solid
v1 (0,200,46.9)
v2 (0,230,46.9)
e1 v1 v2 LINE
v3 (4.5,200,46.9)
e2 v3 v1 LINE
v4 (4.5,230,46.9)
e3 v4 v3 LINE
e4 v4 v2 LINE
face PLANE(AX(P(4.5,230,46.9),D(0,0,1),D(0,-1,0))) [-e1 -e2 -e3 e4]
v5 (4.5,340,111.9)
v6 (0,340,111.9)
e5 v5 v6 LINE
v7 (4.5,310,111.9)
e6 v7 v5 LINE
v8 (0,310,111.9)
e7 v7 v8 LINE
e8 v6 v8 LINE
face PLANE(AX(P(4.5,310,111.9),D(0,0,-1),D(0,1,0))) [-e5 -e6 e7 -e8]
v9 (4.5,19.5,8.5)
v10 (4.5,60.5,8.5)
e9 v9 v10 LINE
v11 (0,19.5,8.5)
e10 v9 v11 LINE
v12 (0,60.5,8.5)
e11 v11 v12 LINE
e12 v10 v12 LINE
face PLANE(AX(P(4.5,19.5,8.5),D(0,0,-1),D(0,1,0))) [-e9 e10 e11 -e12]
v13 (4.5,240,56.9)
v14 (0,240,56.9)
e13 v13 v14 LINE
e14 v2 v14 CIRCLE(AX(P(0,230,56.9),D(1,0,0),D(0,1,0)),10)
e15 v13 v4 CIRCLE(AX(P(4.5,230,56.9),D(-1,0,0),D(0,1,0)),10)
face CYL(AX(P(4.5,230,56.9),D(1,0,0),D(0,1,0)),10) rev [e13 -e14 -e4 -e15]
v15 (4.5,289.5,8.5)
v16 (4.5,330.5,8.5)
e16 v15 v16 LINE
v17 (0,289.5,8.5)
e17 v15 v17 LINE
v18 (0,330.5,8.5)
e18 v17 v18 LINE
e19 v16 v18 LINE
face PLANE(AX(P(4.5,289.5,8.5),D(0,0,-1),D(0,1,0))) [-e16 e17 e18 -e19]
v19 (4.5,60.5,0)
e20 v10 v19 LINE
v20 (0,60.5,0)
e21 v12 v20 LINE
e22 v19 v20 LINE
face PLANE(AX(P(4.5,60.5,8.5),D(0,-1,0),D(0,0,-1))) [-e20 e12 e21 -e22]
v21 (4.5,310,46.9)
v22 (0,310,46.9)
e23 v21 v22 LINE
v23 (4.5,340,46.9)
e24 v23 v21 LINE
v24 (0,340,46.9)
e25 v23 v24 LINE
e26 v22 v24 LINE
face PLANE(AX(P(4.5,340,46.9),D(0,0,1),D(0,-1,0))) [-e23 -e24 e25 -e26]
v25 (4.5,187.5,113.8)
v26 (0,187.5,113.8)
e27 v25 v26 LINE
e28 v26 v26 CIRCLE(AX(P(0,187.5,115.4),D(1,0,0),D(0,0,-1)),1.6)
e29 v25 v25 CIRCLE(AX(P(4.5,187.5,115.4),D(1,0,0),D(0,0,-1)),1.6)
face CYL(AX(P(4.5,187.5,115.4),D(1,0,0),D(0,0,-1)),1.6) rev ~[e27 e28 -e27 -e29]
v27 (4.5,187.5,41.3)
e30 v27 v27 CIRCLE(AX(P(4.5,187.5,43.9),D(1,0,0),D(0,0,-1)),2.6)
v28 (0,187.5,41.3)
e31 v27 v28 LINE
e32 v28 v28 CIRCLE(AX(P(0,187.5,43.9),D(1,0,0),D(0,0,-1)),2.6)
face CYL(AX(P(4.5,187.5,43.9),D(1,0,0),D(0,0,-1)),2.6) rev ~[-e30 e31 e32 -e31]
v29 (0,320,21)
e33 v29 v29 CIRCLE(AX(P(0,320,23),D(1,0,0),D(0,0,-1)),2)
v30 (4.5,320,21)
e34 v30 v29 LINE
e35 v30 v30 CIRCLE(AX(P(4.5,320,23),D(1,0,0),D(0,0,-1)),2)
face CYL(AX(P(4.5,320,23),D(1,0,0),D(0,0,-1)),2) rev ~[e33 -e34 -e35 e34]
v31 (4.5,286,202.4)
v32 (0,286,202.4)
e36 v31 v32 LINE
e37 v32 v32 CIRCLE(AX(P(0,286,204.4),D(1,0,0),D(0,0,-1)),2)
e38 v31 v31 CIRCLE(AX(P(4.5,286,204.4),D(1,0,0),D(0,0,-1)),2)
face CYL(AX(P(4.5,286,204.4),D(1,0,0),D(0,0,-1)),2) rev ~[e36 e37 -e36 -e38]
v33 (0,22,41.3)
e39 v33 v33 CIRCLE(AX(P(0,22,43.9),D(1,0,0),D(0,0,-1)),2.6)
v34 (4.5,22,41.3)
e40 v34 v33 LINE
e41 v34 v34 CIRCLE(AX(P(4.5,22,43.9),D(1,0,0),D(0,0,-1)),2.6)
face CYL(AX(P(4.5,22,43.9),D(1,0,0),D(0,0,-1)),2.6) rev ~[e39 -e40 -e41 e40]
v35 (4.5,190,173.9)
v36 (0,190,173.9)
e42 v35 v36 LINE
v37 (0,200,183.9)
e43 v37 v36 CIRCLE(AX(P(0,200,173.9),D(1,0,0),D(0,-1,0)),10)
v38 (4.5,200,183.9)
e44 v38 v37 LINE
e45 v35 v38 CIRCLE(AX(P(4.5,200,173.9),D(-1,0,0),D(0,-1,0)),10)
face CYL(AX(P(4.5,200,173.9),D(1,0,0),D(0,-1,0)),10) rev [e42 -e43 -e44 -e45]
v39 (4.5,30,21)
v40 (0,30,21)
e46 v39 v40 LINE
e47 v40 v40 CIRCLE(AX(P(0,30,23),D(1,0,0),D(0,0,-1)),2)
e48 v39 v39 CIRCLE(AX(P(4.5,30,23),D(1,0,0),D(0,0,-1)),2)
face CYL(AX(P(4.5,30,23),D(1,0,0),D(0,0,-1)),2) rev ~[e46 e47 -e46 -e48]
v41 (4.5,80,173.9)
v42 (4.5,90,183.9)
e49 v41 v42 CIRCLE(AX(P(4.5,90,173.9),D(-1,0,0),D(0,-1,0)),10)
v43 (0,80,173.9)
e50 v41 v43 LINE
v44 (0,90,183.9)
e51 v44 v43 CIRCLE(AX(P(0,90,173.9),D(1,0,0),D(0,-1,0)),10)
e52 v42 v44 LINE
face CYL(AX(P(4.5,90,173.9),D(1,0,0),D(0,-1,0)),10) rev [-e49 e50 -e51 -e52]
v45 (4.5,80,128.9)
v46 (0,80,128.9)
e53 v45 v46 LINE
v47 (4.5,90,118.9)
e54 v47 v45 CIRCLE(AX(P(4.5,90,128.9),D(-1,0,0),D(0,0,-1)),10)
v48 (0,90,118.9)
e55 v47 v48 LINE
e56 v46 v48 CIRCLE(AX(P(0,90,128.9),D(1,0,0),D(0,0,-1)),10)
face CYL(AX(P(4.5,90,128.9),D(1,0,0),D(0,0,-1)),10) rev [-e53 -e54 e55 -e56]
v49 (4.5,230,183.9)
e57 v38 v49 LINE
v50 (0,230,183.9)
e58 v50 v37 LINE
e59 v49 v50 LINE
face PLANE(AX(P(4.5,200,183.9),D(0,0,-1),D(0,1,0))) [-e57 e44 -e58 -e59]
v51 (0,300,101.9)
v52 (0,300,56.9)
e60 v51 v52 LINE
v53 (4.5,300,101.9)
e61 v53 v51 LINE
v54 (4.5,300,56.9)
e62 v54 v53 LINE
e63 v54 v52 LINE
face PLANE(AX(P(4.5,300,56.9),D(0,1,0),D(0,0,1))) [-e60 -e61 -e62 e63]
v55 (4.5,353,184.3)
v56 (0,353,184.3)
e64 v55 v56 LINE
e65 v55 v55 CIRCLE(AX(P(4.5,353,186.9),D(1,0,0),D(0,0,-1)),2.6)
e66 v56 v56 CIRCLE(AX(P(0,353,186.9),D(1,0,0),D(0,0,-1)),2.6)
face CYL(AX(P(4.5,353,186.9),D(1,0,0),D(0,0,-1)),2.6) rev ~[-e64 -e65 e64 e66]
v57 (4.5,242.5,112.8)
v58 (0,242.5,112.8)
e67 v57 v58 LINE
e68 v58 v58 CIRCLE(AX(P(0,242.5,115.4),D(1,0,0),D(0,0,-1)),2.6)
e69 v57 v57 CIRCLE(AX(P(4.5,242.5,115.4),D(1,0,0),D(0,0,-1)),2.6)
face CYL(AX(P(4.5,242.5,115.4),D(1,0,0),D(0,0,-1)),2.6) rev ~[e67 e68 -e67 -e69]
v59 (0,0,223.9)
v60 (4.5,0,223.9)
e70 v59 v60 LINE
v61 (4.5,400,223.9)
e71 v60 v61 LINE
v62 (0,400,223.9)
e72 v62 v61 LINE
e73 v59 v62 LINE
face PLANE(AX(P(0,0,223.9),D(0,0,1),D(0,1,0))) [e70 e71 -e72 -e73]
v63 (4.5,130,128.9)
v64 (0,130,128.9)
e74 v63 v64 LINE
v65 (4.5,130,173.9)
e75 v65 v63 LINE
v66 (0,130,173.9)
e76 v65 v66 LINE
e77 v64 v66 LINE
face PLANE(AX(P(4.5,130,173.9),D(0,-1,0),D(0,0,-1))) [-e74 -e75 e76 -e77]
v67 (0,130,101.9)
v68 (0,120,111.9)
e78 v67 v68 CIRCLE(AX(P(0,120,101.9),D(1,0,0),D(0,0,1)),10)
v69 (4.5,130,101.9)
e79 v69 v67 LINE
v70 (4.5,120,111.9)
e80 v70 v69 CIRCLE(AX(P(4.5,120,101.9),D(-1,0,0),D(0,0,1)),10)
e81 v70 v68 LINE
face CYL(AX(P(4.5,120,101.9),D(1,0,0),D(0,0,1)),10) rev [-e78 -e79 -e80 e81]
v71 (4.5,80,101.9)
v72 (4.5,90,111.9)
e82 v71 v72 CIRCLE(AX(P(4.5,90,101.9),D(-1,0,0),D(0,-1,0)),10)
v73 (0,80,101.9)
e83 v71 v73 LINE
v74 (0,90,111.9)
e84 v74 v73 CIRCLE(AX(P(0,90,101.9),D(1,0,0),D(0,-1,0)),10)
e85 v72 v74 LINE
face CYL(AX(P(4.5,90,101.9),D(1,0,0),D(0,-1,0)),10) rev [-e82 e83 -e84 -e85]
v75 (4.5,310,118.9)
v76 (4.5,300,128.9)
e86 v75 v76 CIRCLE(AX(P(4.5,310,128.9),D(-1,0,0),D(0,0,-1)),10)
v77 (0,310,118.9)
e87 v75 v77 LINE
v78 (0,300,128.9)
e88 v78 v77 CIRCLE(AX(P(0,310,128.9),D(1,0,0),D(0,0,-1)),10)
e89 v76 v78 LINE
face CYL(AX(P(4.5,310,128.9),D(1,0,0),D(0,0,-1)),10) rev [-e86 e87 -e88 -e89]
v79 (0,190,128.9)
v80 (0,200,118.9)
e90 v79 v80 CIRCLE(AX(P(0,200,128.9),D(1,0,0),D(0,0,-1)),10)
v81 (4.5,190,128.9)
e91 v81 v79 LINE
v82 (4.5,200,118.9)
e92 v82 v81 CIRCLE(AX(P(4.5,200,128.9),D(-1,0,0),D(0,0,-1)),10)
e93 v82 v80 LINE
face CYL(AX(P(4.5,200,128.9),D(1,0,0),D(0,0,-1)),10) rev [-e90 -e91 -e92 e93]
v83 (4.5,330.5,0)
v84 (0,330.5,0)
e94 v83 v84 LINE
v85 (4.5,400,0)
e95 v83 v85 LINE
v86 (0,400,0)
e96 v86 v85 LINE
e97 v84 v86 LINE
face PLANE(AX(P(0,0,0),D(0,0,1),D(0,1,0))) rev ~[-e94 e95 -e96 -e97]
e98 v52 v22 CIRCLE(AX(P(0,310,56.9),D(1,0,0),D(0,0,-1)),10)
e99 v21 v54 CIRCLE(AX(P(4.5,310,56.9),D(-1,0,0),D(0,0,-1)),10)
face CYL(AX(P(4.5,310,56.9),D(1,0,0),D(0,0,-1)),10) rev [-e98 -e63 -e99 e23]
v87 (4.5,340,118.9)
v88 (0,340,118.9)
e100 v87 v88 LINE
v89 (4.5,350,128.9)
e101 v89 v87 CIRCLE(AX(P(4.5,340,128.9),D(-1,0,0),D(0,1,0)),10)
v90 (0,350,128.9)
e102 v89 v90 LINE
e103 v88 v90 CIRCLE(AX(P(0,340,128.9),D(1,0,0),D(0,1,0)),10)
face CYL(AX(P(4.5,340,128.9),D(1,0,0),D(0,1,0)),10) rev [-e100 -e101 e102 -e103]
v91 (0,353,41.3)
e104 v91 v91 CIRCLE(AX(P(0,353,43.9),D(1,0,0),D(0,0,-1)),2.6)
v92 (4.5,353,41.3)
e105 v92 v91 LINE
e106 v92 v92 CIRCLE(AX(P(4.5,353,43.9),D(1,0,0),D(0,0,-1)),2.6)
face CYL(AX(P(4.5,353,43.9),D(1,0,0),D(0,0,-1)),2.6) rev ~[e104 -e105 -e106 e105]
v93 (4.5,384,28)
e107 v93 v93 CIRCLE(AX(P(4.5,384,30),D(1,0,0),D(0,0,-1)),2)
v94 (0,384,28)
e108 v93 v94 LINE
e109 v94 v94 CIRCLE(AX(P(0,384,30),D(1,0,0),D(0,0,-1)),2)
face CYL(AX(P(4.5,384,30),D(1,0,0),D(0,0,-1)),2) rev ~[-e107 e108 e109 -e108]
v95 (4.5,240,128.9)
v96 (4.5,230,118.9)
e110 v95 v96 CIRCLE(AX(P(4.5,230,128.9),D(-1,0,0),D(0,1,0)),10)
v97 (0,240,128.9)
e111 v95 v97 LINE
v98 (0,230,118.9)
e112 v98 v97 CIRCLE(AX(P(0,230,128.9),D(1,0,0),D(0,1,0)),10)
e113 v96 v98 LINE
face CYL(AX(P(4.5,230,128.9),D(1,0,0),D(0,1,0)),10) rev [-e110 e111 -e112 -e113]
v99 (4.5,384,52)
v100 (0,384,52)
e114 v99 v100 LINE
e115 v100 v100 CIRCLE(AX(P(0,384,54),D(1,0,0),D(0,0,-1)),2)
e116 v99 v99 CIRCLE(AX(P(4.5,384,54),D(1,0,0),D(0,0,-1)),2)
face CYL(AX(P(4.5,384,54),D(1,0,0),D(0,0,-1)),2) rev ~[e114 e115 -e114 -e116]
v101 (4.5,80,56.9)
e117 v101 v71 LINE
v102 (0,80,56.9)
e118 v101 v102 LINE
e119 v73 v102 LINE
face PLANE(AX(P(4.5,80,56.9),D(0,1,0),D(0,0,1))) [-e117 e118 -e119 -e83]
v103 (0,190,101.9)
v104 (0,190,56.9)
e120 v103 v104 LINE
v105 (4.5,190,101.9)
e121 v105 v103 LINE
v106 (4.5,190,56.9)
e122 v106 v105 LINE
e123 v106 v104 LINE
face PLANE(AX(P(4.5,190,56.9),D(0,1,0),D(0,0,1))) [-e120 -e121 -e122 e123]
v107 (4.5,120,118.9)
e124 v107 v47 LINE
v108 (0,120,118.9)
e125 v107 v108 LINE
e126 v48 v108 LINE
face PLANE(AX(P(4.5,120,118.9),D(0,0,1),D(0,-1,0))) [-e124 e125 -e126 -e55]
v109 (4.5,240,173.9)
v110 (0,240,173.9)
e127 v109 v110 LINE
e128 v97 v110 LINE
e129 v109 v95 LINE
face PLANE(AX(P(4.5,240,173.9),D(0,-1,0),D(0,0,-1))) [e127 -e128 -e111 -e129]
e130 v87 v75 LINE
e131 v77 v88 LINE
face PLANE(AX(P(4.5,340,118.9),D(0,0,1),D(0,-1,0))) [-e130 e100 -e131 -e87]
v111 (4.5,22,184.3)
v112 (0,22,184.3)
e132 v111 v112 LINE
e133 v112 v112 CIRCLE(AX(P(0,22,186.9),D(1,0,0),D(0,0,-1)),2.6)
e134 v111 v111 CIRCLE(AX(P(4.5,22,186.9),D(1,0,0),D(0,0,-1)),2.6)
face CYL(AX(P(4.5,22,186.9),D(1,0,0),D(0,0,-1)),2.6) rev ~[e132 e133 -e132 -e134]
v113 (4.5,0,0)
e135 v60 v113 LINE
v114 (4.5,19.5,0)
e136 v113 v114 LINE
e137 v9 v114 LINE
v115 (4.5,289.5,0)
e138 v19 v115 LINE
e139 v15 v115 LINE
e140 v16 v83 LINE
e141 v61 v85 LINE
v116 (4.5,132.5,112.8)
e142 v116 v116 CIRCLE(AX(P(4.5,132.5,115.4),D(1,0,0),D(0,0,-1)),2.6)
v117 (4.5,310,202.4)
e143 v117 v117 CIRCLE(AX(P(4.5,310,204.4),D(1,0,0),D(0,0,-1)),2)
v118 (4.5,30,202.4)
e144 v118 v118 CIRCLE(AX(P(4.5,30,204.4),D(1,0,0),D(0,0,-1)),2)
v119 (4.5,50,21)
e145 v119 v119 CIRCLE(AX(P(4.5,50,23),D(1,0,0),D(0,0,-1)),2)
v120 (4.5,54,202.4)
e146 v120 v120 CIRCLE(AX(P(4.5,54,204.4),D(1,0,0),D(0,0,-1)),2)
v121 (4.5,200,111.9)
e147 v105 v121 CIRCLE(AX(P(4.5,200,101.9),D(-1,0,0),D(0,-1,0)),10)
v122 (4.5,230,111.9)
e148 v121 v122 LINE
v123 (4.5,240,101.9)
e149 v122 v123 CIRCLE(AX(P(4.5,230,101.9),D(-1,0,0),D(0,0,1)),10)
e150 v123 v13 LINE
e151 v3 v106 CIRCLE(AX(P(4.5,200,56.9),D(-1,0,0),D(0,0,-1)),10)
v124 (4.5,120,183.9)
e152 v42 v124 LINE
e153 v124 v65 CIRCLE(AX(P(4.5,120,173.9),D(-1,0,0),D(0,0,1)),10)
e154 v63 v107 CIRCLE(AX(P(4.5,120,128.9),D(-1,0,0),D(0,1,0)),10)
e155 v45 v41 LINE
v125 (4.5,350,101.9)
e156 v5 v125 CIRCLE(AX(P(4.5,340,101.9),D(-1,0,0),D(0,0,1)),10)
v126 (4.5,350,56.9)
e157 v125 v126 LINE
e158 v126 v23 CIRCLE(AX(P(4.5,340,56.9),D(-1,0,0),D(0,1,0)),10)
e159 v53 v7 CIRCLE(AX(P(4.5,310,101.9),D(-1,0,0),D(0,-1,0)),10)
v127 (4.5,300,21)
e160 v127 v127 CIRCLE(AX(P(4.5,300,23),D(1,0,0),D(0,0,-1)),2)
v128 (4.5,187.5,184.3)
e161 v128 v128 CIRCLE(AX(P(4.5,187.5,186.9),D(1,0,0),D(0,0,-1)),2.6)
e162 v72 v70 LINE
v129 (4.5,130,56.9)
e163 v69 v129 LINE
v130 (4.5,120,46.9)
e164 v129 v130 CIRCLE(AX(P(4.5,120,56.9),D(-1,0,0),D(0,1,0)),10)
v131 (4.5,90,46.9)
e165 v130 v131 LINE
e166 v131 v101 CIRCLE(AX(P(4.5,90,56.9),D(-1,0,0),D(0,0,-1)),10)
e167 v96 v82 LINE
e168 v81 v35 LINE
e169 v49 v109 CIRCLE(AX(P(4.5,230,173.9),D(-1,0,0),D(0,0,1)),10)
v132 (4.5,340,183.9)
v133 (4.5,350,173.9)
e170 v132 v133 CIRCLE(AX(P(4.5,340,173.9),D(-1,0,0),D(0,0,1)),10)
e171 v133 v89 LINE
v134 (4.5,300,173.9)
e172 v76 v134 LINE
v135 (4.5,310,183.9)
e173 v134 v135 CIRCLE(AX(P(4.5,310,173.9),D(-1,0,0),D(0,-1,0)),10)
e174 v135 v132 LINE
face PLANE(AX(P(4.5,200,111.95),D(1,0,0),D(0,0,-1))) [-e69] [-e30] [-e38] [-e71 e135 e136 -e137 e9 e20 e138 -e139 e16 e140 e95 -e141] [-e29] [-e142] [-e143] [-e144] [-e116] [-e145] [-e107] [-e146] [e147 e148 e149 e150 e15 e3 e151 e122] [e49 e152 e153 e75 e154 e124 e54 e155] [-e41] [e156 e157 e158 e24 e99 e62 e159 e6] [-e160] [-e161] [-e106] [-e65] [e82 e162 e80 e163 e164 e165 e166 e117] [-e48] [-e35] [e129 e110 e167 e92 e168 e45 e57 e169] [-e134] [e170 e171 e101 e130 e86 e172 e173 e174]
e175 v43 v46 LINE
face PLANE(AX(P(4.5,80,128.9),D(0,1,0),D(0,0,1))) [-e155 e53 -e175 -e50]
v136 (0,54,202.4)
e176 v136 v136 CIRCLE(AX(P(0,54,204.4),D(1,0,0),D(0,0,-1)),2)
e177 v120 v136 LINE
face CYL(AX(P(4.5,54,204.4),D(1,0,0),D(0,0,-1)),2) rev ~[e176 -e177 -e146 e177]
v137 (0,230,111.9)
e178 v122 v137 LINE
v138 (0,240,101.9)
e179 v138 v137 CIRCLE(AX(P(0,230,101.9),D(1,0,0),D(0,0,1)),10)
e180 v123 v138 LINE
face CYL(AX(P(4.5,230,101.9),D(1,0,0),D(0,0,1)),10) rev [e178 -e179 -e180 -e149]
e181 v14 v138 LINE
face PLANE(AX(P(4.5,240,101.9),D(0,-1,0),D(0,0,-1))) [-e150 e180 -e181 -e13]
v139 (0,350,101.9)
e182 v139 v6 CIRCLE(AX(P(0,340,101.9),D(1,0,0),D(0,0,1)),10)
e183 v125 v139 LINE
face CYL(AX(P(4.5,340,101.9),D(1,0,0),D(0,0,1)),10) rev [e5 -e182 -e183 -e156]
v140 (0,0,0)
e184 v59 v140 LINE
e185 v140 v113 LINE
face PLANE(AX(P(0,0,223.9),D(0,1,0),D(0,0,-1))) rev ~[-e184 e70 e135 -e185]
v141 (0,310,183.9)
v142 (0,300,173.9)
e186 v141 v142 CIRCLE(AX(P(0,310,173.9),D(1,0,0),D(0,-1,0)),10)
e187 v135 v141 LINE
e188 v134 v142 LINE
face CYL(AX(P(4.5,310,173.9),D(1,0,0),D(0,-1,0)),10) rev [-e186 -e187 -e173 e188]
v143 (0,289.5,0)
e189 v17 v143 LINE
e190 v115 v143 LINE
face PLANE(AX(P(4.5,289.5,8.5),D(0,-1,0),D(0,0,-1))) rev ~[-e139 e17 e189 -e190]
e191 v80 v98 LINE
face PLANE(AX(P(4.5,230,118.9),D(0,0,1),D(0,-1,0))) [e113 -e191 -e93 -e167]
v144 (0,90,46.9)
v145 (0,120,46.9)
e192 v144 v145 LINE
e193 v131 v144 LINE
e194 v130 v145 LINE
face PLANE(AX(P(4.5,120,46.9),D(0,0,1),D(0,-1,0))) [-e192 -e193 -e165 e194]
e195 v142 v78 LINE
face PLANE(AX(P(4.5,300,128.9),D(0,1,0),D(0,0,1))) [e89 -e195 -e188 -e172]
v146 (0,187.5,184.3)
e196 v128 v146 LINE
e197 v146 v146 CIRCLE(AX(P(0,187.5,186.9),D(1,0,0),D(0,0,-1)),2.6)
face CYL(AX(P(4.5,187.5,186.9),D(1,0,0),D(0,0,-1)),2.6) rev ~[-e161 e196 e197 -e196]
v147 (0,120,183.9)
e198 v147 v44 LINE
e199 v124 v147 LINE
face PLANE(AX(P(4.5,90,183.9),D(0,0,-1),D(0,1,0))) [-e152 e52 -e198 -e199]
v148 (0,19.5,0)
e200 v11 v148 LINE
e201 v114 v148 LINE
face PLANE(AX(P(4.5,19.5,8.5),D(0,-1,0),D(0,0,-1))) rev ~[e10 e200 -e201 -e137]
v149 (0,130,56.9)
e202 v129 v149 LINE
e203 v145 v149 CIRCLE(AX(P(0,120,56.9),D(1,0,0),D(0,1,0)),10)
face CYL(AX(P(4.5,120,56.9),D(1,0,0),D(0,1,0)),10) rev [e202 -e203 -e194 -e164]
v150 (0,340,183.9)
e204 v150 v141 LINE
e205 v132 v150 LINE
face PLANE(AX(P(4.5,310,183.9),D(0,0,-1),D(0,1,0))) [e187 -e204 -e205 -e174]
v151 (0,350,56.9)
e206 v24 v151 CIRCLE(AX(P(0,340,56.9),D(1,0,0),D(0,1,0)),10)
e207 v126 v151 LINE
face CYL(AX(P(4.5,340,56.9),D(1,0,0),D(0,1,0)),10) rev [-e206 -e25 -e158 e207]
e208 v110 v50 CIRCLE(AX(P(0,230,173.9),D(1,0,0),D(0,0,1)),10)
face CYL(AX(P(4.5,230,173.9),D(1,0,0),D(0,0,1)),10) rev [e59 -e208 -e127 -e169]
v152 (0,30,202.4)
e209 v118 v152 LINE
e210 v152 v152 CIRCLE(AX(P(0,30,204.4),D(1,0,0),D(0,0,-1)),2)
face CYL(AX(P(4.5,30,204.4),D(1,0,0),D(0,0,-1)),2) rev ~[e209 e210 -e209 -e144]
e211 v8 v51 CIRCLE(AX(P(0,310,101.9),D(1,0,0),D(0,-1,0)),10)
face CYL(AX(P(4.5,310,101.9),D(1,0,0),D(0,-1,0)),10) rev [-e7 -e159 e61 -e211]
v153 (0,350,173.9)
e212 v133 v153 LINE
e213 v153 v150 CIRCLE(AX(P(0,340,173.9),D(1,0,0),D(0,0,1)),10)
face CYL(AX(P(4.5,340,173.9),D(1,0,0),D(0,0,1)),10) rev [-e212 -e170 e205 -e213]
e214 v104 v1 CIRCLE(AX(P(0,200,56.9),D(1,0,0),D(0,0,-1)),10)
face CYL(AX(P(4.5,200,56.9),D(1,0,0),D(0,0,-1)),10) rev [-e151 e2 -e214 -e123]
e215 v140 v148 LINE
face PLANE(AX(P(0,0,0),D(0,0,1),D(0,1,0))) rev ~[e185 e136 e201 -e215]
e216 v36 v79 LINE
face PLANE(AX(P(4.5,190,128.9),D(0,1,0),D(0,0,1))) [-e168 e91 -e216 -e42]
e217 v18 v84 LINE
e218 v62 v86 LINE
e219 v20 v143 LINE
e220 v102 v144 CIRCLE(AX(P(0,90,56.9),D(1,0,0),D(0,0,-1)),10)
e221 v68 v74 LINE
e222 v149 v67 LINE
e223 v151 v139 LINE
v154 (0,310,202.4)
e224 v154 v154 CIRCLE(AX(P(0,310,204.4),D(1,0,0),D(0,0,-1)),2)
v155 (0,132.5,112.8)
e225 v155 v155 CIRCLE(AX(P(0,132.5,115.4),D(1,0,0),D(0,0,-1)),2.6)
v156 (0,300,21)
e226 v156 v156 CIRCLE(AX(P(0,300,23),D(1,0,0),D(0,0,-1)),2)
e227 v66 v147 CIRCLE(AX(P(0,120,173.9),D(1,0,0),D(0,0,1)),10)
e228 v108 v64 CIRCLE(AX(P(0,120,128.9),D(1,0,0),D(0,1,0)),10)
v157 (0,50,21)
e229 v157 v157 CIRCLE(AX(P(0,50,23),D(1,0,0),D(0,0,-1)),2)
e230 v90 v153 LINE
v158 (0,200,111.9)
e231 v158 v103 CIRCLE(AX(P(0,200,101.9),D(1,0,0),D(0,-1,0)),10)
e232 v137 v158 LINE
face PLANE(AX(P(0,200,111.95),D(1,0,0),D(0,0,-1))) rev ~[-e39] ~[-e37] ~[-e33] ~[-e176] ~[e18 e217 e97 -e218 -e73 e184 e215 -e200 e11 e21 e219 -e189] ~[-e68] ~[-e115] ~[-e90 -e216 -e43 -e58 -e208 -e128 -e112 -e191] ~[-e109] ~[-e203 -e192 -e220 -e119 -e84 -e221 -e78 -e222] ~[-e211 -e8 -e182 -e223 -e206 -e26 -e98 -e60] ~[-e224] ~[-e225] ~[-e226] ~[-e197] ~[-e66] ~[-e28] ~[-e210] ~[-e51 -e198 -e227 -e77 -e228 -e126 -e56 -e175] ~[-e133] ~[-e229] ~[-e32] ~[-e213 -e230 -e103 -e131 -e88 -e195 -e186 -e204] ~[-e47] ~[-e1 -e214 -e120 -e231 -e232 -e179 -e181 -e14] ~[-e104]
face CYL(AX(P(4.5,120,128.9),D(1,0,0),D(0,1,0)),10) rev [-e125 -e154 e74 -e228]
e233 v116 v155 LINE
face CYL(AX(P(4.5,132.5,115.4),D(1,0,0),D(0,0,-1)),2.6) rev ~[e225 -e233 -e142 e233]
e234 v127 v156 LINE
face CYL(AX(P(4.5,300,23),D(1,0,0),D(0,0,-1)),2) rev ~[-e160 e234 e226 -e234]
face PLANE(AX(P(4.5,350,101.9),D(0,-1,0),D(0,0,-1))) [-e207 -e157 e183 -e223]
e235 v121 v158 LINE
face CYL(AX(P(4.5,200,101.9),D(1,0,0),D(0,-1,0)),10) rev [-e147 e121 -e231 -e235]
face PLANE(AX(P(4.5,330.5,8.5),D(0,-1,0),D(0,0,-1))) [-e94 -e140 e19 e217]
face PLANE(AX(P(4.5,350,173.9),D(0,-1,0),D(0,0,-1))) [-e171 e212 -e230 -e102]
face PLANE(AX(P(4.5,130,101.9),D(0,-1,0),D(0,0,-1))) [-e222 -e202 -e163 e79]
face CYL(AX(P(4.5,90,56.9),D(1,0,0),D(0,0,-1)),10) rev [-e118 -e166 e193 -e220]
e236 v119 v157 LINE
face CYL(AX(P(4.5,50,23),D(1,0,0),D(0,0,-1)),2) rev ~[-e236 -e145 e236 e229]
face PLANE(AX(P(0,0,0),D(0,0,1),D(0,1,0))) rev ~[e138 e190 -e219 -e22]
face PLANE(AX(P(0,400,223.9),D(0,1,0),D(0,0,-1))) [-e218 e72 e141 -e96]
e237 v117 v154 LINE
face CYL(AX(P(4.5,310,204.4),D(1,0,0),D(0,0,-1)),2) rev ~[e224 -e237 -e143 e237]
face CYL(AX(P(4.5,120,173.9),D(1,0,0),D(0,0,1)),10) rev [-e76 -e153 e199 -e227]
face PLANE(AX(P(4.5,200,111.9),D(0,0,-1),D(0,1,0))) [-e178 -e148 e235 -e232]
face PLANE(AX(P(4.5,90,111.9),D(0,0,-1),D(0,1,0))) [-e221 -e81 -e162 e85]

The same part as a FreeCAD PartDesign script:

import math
import FreeCAD as App
import Part
import Sketcher

V = App.Vector
Q = App.Units.Quantity

doc = App.newDocument("Part")
body = doc.addObject("PartDesign::Body", "Body")

# Sketch on YZ plane
sketch1 = body.newObject("Sketcher::SketchObject", "Sketch")
sketch1.AttachmentSupport = (doc.getObject("YZ_Plane"), [""])
sketch1.MapMode = "FlatFace"
sketch1.addGeometry(Part.LineSegment(V(400, 224, 0), V(0, 224, 0)), False)
sketch1.addGeometry(Part.LineSegment(V(0, 224, 0), V(0, 0, 0)), False)
sketch1.addGeometry(Part.LineSegment(V(0, 0, 0), V(400, 0, 0)), False)
sketch1.addGeometry(Part.LineSegment(V(400, 0, 0), V(400, 224, 0)), False)
sketch1.addConstraint(Sketcher.Constraint("Coincident", 0, 2, 1, 1))
sketch1.addConstraint(Sketcher.Constraint("Coincident", 1, 2, 2, 1))
sketch1.addConstraint(Sketcher.Constraint("Coincident", 2, 2, 3, 1))
sketch1.addConstraint(Sketcher.Constraint("Coincident", 3, 2, 0, 1))
sketch1.addConstraint(Sketcher.Constraint("Horizontal", 0))
sketch1.addConstraint(Sketcher.Constraint("Vertical", 1))
sketch1.addConstraint(Sketcher.Constraint("Horizontal", 2))
sketch1.addConstraint(Sketcher.Constraint("Vertical", 3))
sketch1.addConstraint(Sketcher.Constraint("Coincident", 1, 2, -1, 1))
sketch1.addConstraint(Sketcher.Constraint("DistanceX", 0, 2, 0, 1, Q("400 mm")))
sketch1.addConstraint(Sketcher.Constraint("DistanceY", 1, 2, 1, 1, Q("223.9 mm")))
pad1 = body.newObject("PartDesign::Pad", "Pad")
pad1.Profile = sketch1
pad1.Length = 4.5

# Sketch on YZ plane
sketch2 = body.newObject("Sketcher::SketchObject", "Sketch001")
sketch2.AttachmentSupport = (doc.getObject("YZ_Plane"), [""])
sketch2.MapMode = "FlatFace"
sketch2.AttachmentOffset = App.Placement(V(0, 0, 4.5), App.Rotation())
sketch2.addGeometry(Part.Circle(V(310, 204.4, 0), V(0, 0, 1), 2), False)
sketch2.addGeometry(Part.Circle(V(286, 204.4, 0), V(0, 0, 1), 2), False)
sketch2.addGeometry(Part.Circle(V(54, 204.4, 0), V(0, 0, 1), 2), False)
sketch2.addGeometry(Part.Circle(V(30, 204.4, 0), V(0, 0, 1), 2), False)
sketch2.addGeometry(Part.Circle(V(384, 54, 0), V(0, 0, 1), 2), False)
sketch2.addGeometry(Part.Circle(V(384, 30, 0), V(0, 0, 1), 2), False)
sketch2.addGeometry(Part.Circle(V(320, 23, 0), V(0, 0, 1), 2), False)
sketch2.addGeometry(Part.Circle(V(300, 23, 0), V(0, 0, 1), 2), False)
sketch2.addGeometry(Part.Circle(V(50, 23, 0), V(0, 0, 1), 2), False)
sketch2.addGeometry(Part.Circle(V(30, 23, 0), V(0, 0, 1), 2), False)
sketch2.addGeometry(Part.LineSegment(V(330.5, 8.5, 0), V(289.5, 8.5, 0)), False)
sketch2.addGeometry(Part.LineSegment(V(289.5, 8.5, 0), V(289.5, 0, 0)), False)
sketch2.addGeometry(Part.LineSegment(V(289.5, 0, 0), V(330.5, 0, 0)), False)
sketch2.addGeometry(Part.LineSegment(V(330.5, 0, 0), V(330.5, 8.5, 0)), False)
sketch2.addGeometry(Part.LineSegment(V(60.5, 8.5, 0), V(19.5, 8.5, 0)), False)
sketch2.addGeometry(Part.LineSegment(V(19.5, 8.5, 0), V(19.5, 0, 0)), False)
sketch2.addGeometry(Part.LineSegment(V(19.5, 0, 0), V(60.5, 0, 0)), False)
sketch2.addGeometry(Part.LineSegment(V(60.5, 0, 0), V(60.5, 8.5, 0)), False)
sketch2.addConstraint(Sketcher.Constraint("Coincident", 10, 2, 11, 1))
sketch2.addConstraint(Sketcher.Constraint("Coincident", 11, 2, 12, 1))
sketch2.addConstraint(Sketcher.Constraint("Coincident", 12, 2, 13, 1))
sketch2.addConstraint(Sketcher.Constraint("Coincident", 13, 2, 10, 1))
sketch2.addConstraint(Sketcher.Constraint("Coincident", 14, 2, 15, 1))
sketch2.addConstraint(Sketcher.Constraint("Coincident", 15, 2, 16, 1))
sketch2.addConstraint(Sketcher.Constraint("Coincident", 16, 2, 17, 1))
sketch2.addConstraint(Sketcher.Constraint("Coincident", 17, 2, 14, 1))
sketch2.addConstraint(Sketcher.Constraint("Horizontal", 10))
sketch2.addConstraint(Sketcher.Constraint("Vertical", 11))
sketch2.addConstraint(Sketcher.Constraint("Horizontal", 12))
sketch2.addConstraint(Sketcher.Constraint("Vertical", 13))
sketch2.addConstraint(Sketcher.Constraint("Horizontal", 14))
sketch2.addConstraint(Sketcher.Constraint("Vertical", 15))
sketch2.addConstraint(Sketcher.Constraint("Horizontal", 16))
sketch2.addConstraint(Sketcher.Constraint("Vertical", 17))
sketch2.addConstraint(Sketcher.Constraint("Equal", 0, 1))
sketch2.addConstraint(Sketcher.Constraint("Equal", 1, 2))
sketch2.addConstraint(Sketcher.Constraint("Equal", 2, 3))
sketch2.addConstraint(Sketcher.Constraint("Equal", 3, 4))
sketch2.addConstraint(Sketcher.Constraint("Equal", 4, 5))
sketch2.addConstraint(Sketcher.Constraint("Equal", 5, 6))
sketch2.addConstraint(Sketcher.Constraint("Equal", 6, 7))
sketch2.addConstraint(Sketcher.Constraint("Equal", 7, 8))
sketch2.addConstraint(Sketcher.Constraint("Equal", 8, 9))
sketch2.addConstraint(Sketcher.Constraint("PointOnObject", 11, 2, -1))
sketch2.addConstraint(Sketcher.Constraint("PointOnObject", 15, 2, -1))
sketch2.addConstraint(Sketcher.Constraint("Horizontal", 0, 3, 1, 3))
sketch2.addConstraint(Sketcher.Constraint("Horizontal", 1, 3, 2, 3))
sketch2.addConstraint(Sketcher.Constraint("Horizontal", 2, 3, 3, 3))
sketch2.addConstraint(Sketcher.Constraint("Horizontal", 6, 3, 7, 3))
sketch2.addConstraint(Sketcher.Constraint("Horizontal", 7, 3, 8, 3))
sketch2.addConstraint(Sketcher.Constraint("Horizontal", 8, 3, 9, 3))
sketch2.addConstraint(Sketcher.Constraint("Horizontal", 13, 2, 14, 2))
sketch2.addConstraint(Sketcher.Constraint("Vertical", 4, 3, 5, 3))
sketch2.addConstraint(Sketcher.Constraint("Vertical", 3, 3, 9, 3))
sketch2.addConstraint(Sketcher.Constraint("Equal", 12, 14))
sketch2.addConstraint(Sketcher.Constraint("Diameter", 0, Q("4 mm")))
sketch2.addConstraint(Sketcher.Constraint("DistanceX", 10, 2, 10, 1, Q("41 mm")))
sketch2.addConstraint(Sketcher.Constraint("DistanceY", 11, 2, 11, 1, Q("8.5 mm")))
sketch2.addConstraint(Sketcher.Constraint("DistanceX", -1, 1, 0, 3, Q("310 mm")))
sketch2.addConstraint(Sketcher.Constraint("DistanceX", -1, 1, 1, 3, Q("286 mm")))
sketch2.addConstraint(Sketcher.Constraint("DistanceX", -1, 1, 2, 3, Q("54 mm")))
sketch2.addConstraint(Sketcher.Constraint("DistanceX", -1, 1, 3, 3, Q("30 mm")))
sketch2.addConstraint(Sketcher.Constraint("DistanceX", -1, 1, 4, 3, Q("384 mm")))
sketch2.addConstraint(Sketcher.Constraint("DistanceY", -1, 1, 4, 3, Q("54 mm")))
sketch2.addConstraint(Sketcher.Constraint("DistanceY", -1, 1, 5, 3, Q("30 mm")))
sketch2.addConstraint(Sketcher.Constraint("DistanceX", -1, 1, 6, 3, Q("320 mm")))
sketch2.addConstraint(Sketcher.Constraint("DistanceY", -1, 1, 6, 3, Q("23 mm")))
sketch2.addConstraint(Sketcher.Constraint("DistanceX", -1, 1, 7, 3, Q("300 mm")))
sketch2.addConstraint(Sketcher.Constraint("DistanceX", -1, 1, 8, 3, Q("50 mm")))
sketch2.addConstraint(Sketcher.Constraint("DistanceX", 14, 2, 10, 2, Q("270 mm")))
sketch2.addConstraint(Sketcher.Constraint("DistanceY", -1, 1, 0, 3, Q("204.4 mm")))
sketch2.addConstraint(Sketcher.Constraint("DistanceX", -1, 1, 10, 2, Q("289.5 mm")))
pocket1 = body.newObject("PartDesign::Pocket", "Pocket")
pocket1.Profile = sketch2
pocket1.Length = 10

# Sketch on YZ plane
sketch3 = body.newObject("Sketcher::SketchObject", "Sketch002")
sketch3.AttachmentSupport = (doc.getObject("YZ_Plane"), [""])
sketch3.MapMode = "FlatFace"
sketch3.AttachmentOffset = App.Placement(V(0, 0, 4.5), App.Rotation())
sketch3.addGeometry(Part.Circle(V(22, 43.9, 0), V(0, 0, 1), 2.6), False)
sketch3.addConstraint(Sketcher.Constraint("Diameter", 0, Q("5.2 mm")))
sketch3.addConstraint(Sketcher.Constraint("DistanceX", -1, 1, 0, 3, Q("22 mm")))
sketch3.addConstraint(Sketcher.Constraint("DistanceY", -1, 1, 0, 3, Q("43.9 mm")))
pocket2 = body.newObject("PartDesign::Pocket", "Pocket001")
pocket2.Profile = sketch3
pocket2.Type = "UpToFirst"

# Sketch on YZ plane
sketch4 = body.newObject("Sketcher::SketchObject", "Sketch003")
sketch4.AttachmentSupport = (doc.getObject("YZ_Plane"), [""])
sketch4.MapMode = "FlatFace"
sketch4.AttachmentOffset = App.Placement(V(0, 0, 4.5), App.Rotation())
sketch4.addGeometry(Part.Circle(V(22, 186.9, 0), V(0, 0, 1), 2.6), False)
sketch4.addConstraint(Sketcher.Constraint("Diameter", 0, Q("5.2 mm")))
sketch4.addConstraint(Sketcher.Constraint("DistanceX", -1, 1, 0, 3, Q("22 mm")))
sketch4.addConstraint(Sketcher.Constraint("DistanceY", -1, 1, 0, 3, Q("186.9 mm")))
pocket3 = body.newObject("PartDesign::Pocket", "Pocket002")
pocket3.Profile = sketch4
pocket3.Type = "UpToFirst"

# Sketch on YZ plane
sketch5 = body.newObject("Sketcher::SketchObject", "Sketch004")
sketch5.AttachmentSupport = (doc.getObject("YZ_Plane"), [""])
sketch5.MapMode = "FlatFace"
sketch5.AttachmentOffset = App.Placement(V(0, 0, 4.5), App.Rotation())
sketch5.addGeometry(Part.Circle(V(187.5, 43.9, 0), V(0, 0, 1), 2.6), False)
sketch5.addConstraint(Sketcher.Constraint("Diameter", 0, Q("5.2 mm")))
sketch5.addConstraint(Sketcher.Constraint("DistanceX", -1, 1, 0, 3, Q("187.5 mm")))
sketch5.addConstraint(Sketcher.Constraint("DistanceY", -1, 1, 0, 3, Q("43.9 mm")))
pocket4 = body.newObject("PartDesign::Pocket", "Pocket003")
pocket4.Profile = sketch5
pocket4.Type = "UpToFirst"

# Sketch on YZ plane
sketch6 = body.newObject("Sketcher::SketchObject", "Sketch005")
sketch6.AttachmentSupport = (doc.getObject("YZ_Plane"), [""])
sketch6.MapMode = "FlatFace"
sketch6.AttachmentOffset = App.Placement(V(0, 0, 4.5), App.Rotation())
sketch6.addGeometry(Part.Circle(V(187.5, 186.9, 0), V(0, 0, 1), 2.6), False)
sketch6.addConstraint(Sketcher.Constraint("Diameter", 0, Q("5.2 mm")))
sketch6.addConstraint(Sketcher.Constraint("DistanceX", -1, 1, 0, 3, Q("187.5 mm")))
sketch6.addConstraint(Sketcher.Constraint("DistanceY", -1, 1, 0, 3, Q("186.9 mm")))
pocket5 = body.newObject("PartDesign::Pocket", "Pocket004")
pocket5.Profile = sketch6
pocket5.Type = "UpToFirst"

# Sketch on YZ plane
sketch7 = body.newObject("Sketcher::SketchObject", "Sketch006")
sketch7.AttachmentSupport = (doc.getObject("YZ_Plane"), [""])
sketch7.MapMode = "FlatFace"
sketch7.AttachmentOffset = App.Placement(V(0, 0, 4.5), App.Rotation())
sketch7.addGeometry(Part.Circle(V(353, 186.9, 0), V(0, 0, 1), 2.6), False)
sketch7.addConstraint(Sketcher.Constraint("Diameter", 0, Q("5.2 mm")))
sketch7.addConstraint(Sketcher.Constraint("DistanceX", -1, 1, 0, 3, Q("353 mm")))
sketch7.addConstraint(Sketcher.Constraint("DistanceY", -1, 1, 0, 3, Q("186.9 mm")))
pocket6 = body.newObject("PartDesign::Pocket", "Pocket005")
pocket6.Profile = sketch7
pocket6.Type = "UpToFirst"

# Sketch on YZ plane
sketch8 = body.newObject("Sketcher::SketchObject", "Sketch007")
sketch8.AttachmentSupport = (doc.getObject("YZ_Plane"), [""])
sketch8.MapMode = "FlatFace"
sketch8.AttachmentOffset = App.Placement(V(0, 0, 4.5), App.Rotation())
sketch8.addGeometry(Part.Circle(V(353, 43.9, 0), V(0, 0, 1), 2.6), False)
sketch8.addConstraint(Sketcher.Constraint("Diameter", 0, Q("5.2 mm")))
sketch8.addConstraint(Sketcher.Constraint("DistanceX", -1, 1, 0, 3, Q("353 mm")))
sketch8.addConstraint(Sketcher.Constraint("DistanceY", -1, 1, 0, 3, Q("43.9 mm")))
pocket7 = body.newObject("PartDesign::Pocket", "Pocket006")
pocket7.Profile = sketch8
pocket7.Type = "UpToFirst"

# Sketch on YZ plane
sketch9 = body.newObject("Sketcher::SketchObject", "Sketch008")
sketch9.AttachmentSupport = (doc.getObject("YZ_Plane"), [""])
sketch9.MapMode = "FlatFace"
sketch9.AttachmentOffset = App.Placement(V(0, 0, 4.5), App.Rotation())
sketch9.addGeometry(Part.Circle(V(187.5, 115.4, 0), V(0, 0, 1), 1.6), False)
sketch9.addConstraint(Sketcher.Constraint("Diameter", 0, Q("3.2 mm")))
sketch9.addConstraint(Sketcher.Constraint("DistanceX", -1, 1, 0, 3, Q("187.5 mm")))
sketch9.addConstraint(Sketcher.Constraint("DistanceY", -1, 1, 0, 3, Q("115.4 mm")))
pocket8 = body.newObject("PartDesign::Pocket", "Pocket007")
pocket8.Profile = sketch9
pocket8.Type = "UpToFirst"

# Sketch on YZ plane
sketch10 = body.newObject("Sketcher::SketchObject", "Sketch009")
sketch10.AttachmentSupport = (doc.getObject("YZ_Plane"), [""])
sketch10.MapMode = "FlatFace"
sketch10.AttachmentOffset = App.Placement(V(0, 0, 4.5), App.Rotation())
sketch10.addGeometry(Part.Circle(V(242.5, 115.4, 0), V(0, 0, 1), 2.6), False)
sketch10.addConstraint(Sketcher.Constraint("Diameter", 0, Q("5.2 mm")))
sketch10.addConstraint(Sketcher.Constraint("DistanceX", -1, 1, 0, 3, Q("242.5 mm")))
sketch10.addConstraint(Sketcher.Constraint("DistanceY", -1, 1, 0, 3, Q("115.4 mm")))
pocket9 = body.newObject("PartDesign::Pocket", "Pocket008")
pocket9.Profile = sketch10
pocket9.Type = "UpToFirst"

# Sketch on YZ plane
sketch11 = body.newObject("Sketcher::SketchObject", "Sketch010")
sketch11.AttachmentSupport = (doc.getObject("YZ_Plane"), [""])
sketch11.MapMode = "FlatFace"
sketch11.AttachmentOffset = App.Placement(V(0, 0, 4.5), App.Rotation())
sketch11.addGeometry(Part.Circle(V(132.5, 115.4, 0), V(0, 0, 1), 2.6), False)
sketch11.addConstraint(Sketcher.Constraint("Diameter", 0, Q("5.2 mm")))
sketch11.addConstraint(Sketcher.Constraint("DistanceX", -1, 1, 0, 3, Q("132.5 mm")))
sketch11.addConstraint(Sketcher.Constraint("DistanceY", -1, 1, 0, 3, Q("115.4 mm")))
pocket10 = body.newObject("PartDesign::Pocket", "Pocket009")
pocket10.Profile = sketch11
pocket10.Type = "UpToFirst"

# Sketch on YZ plane
sketch12 = body.newObject("Sketcher::SketchObject", "Sketch011")
sketch12.AttachmentSupport = (doc.getObject("YZ_Plane"), [""])
sketch12.MapMode = "FlatFace"
sketch12.AttachmentOffset = App.Placement(V(0, 0, 4.5), App.Rotation())
sketch12.addGeometry(Part.LineSegment(V(130, 129, 0), V(130, 174, 0)), False)
sketch12.addGeometry(Part.ArcOfCircle(Part.Circle(V(120, 174, 0), V(0, 0, 1), 10), math.radians(0), math.radians(90)), False)
sketch12.addGeometry(Part.LineSegment(V(120, 184, 0), V(90, 184, 0)), False)
sketch12.addGeometry(Part.ArcOfCircle(Part.Circle(V(90, 174, 0), V(0, 0, 1), 10), math.radians(90), math.radians(180)), False)
sketch12.addGeometry(Part.LineSegment(V(80, 174, 0), V(80, 129, 0)), False)
sketch12.addGeometry(Part.ArcOfCircle(Part.Circle(V(90, 129, 0), V(0, 0, 1), 10), math.radians(180), math.radians(270)), False)
sketch12.addGeometry(Part.LineSegment(V(90, 119, 0), V(120, 119, 0)), False)
sketch12.addGeometry(Part.ArcOfCircle(Part.Circle(V(120, 129, 0), V(0, 0, 1), 10), math.radians(-90), math.radians(0)), False)
sketch12.addConstraint(Sketcher.Constraint("Tangent", 0, 2, 1, 1))
sketch12.addConstraint(Sketcher.Constraint("Tangent", 1, 2, 2, 1))
sketch12.addConstraint(Sketcher.Constraint("Tangent", 2, 2, 3, 1))
sketch12.addConstraint(Sketcher.Constraint("Tangent", 3, 2, 4, 1))
sketch12.addConstraint(Sketcher.Constraint("Tangent", 4, 2, 5, 1))
sketch12.addConstraint(Sketcher.Constraint("Tangent", 5, 2, 6, 1))
sketch12.addConstraint(Sketcher.Constraint("Tangent", 6, 2, 7, 1))
sketch12.addConstraint(Sketcher.Constraint("Tangent", 7, 2, 0, 1))
sketch12.addConstraint(Sketcher.Constraint("Vertical", 0))
sketch12.addConstraint(Sketcher.Constraint("Horizontal", 2))
sketch12.addConstraint(Sketcher.Constraint("Vertical", 4))
sketch12.addConstraint(Sketcher.Constraint("Horizontal", 6))
sketch12.addConstraint(Sketcher.Constraint("Equal", 1, 3))
sketch12.addConstraint(Sketcher.Constraint("Equal", 3, 5))
sketch12.addConstraint(Sketcher.Constraint("Equal", 5, 7))
sketch12.addConstraint(Sketcher.Constraint("Radius", 1, Q("10 mm")))
sketch12.addConstraint(Sketcher.Constraint("DistanceX", 2, 2, 2, 1, Q("30 mm")))
sketch12.addConstraint(Sketcher.Constraint("DistanceY", 0, 1, 0, 2, Q("45 mm")))
sketch12.addConstraint(Sketcher.Constraint("DistanceX", -1, 1, 1, 3, Q("120 mm")))
sketch12.addConstraint(Sketcher.Constraint("DistanceY", -1, 1, 1, 3, Q("173.9 mm")))
pocket11 = body.newObject("PartDesign::Pocket", "Pocket010")
pocket11.Profile = sketch12
pocket11.Type = "UpToFirst"

# Sketch on YZ plane
sketch13 = body.newObject("Sketcher::SketchObject", "Sketch012")
sketch13.AttachmentSupport = (doc.getObject("YZ_Plane"), [""])
sketch13.MapMode = "FlatFace"
sketch13.AttachmentOffset = App.Placement(V(0, 0, 4.5), App.Rotation())
sketch13.addGeometry(Part.LineSegment(V(130, 57, 0), V(130, 102, 0)), False)
sketch13.addGeometry(Part.ArcOfCircle(Part.Circle(V(120, 102, 0), V(0, 0, 1), 10), math.radians(0), math.radians(90)), False)
sketch13.addGeometry(Part.LineSegment(V(120, 112, 0), V(90, 112, 0)), False)
sketch13.addGeometry(Part.ArcOfCircle(Part.Circle(V(90, 102, 0), V(0, 0, 1), 10), math.radians(90), math.radians(180)), False)
sketch13.addGeometry(Part.LineSegment(V(80, 102, 0), V(80, 57, 0)), False)
sketch13.addGeometry(Part.ArcOfCircle(Part.Circle(V(90, 57, 0), V(0, 0, 1), 10), math.radians(180), math.radians(270)), False)
sketch13.addGeometry(Part.LineSegment(V(90, 47, 0), V(120, 47, 0)), False)
sketch13.addGeometry(Part.ArcOfCircle(Part.Circle(V(120, 57, 0), V(0, 0, 1), 10), math.radians(-90), math.radians(0)), False)
sketch13.addConstraint(Sketcher.Constraint("Tangent", 0, 2, 1, 1))
sketch13.addConstraint(Sketcher.Constraint("Tangent", 1, 2, 2, 1))
sketch13.addConstraint(Sketcher.Constraint("Tangent", 2, 2, 3, 1))
sketch13.addConstraint(Sketcher.Constraint("Tangent", 3, 2, 4, 1))
sketch13.addConstraint(Sketcher.Constraint("Tangent", 4, 2, 5, 1))
sketch13.addConstraint(Sketcher.Constraint("Tangent", 5, 2, 6, 1))
sketch13.addConstraint(Sketcher.Constraint("Tangent", 6, 2, 7, 1))
sketch13.addConstraint(Sketcher.Constraint("Tangent", 7, 2, 0, 1))
sketch13.addConstraint(Sketcher.Constraint("Vertical", 0))
sketch13.addConstraint(Sketcher.Constraint("Horizontal", 2))
sketch13.addConstraint(Sketcher.Constraint("Vertical", 4))
sketch13.addConstraint(Sketcher.Constraint("Horizontal", 6))
sketch13.addConstraint(Sketcher.Constraint("Equal", 1, 3))
sketch13.addConstraint(Sketcher.Constraint("Equal", 3, 5))
sketch13.addConstraint(Sketcher.Constraint("Equal", 5, 7))
sketch13.addConstraint(Sketcher.Constraint("Radius", 1, Q("10 mm")))
sketch13.addConstraint(Sketcher.Constraint("DistanceX", 2, 2, 2, 1, Q("30 mm")))
sketch13.addConstraint(Sketcher.Constraint("DistanceY", 0, 1, 0, 2, Q("45 mm")))
sketch13.addConstraint(Sketcher.Constraint("DistanceX", -1, 1, 1, 3, Q("120 mm")))
sketch13.addConstraint(Sketcher.Constraint("DistanceY", -1, 1, 1, 3, Q("101.9 mm")))
pocket12 = body.newObject("PartDesign::Pocket", "Pocket011")
pocket12.Profile = sketch13
pocket12.Type = "UpToFirst"

# Sketch on YZ plane
sketch14 = body.newObject("Sketcher::SketchObject", "Sketch013")
sketch14.AttachmentSupport = (doc.getObject("YZ_Plane"), [""])
sketch14.MapMode = "FlatFace"
sketch14.AttachmentOffset = App.Placement(V(0, 0, 4.5), App.Rotation())
sketch14.addGeometry(Part.LineSegment(V(240, 57, 0), V(240, 102, 0)), False)
sketch14.addGeometry(Part.ArcOfCircle(Part.Circle(V(230, 102, 0), V(0, 0, 1), 10), math.radians(0), math.radians(90)), False)
sketch14.addGeometry(Part.LineSegment(V(230, 112, 0), V(200, 112, 0)), False)
sketch14.addGeometry(Part.ArcOfCircle(Part.Circle(V(200, 102, 0), V(0, 0, 1), 10), math.radians(90), math.radians(180)), False)
sketch14.addGeometry(Part.LineSegment(V(190, 102, 0), V(190, 57, 0)), False)
sketch14.addGeometry(Part.ArcOfCircle(Part.Circle(V(200, 57, 0), V(0, 0, 1), 10), math.radians(180), math.radians(270)), False)
sketch14.addGeometry(Part.LineSegment(V(200, 47, 0), V(230, 47, 0)), False)
sketch14.addGeometry(Part.ArcOfCircle(Part.Circle(V(230, 57, 0), V(0, 0, 1), 10), math.radians(-90), math.radians(0)), False)
sketch14.addConstraint(Sketcher.Constraint("Tangent", 0, 2, 1, 1))
sketch14.addConstraint(Sketcher.Constraint("Tangent", 1, 2, 2, 1))
sketch14.addConstraint(Sketcher.Constraint("Tangent", 2, 2, 3, 1))
sketch14.addConstraint(Sketcher.Constraint("Tangent", 3, 2, 4, 1))
sketch14.addConstraint(Sketcher.Constraint("Tangent", 4, 2, 5, 1))
sketch14.addConstraint(Sketcher.Constraint("Tangent", 5, 2, 6, 1))
sketch14.addConstraint(Sketcher.Constraint("Tangent", 6, 2, 7, 1))
sketch14.addConstraint(Sketcher.Constraint("Tangent", 7, 2, 0, 1))
sketch14.addConstraint(Sketcher.Constraint("Vertical", 0))
sketch14.addConstraint(Sketcher.Constraint("Horizontal", 2))
sketch14.addConstraint(Sketcher.Constraint("Vertical", 4))
sketch14.addConstraint(Sketcher.Constraint("Horizontal", 6))
sketch14.addConstraint(Sketcher.Constraint("Equal", 1, 3))
sketch14.addConstraint(Sketcher.Constraint("Equal", 3, 5))
sketch14.addConstraint(Sketcher.Constraint("Equal", 5, 7))
sketch14.addConstraint(Sketcher.Constraint("Radius", 1, Q("10 mm")))
sketch14.addConstraint(Sketcher.Constraint("DistanceX", 2, 2, 2, 1, Q("30 mm")))
sketch14.addConstraint(Sketcher.Constraint("DistanceY", 0, 1, 0, 2, Q("45 mm")))
sketch14.addConstraint(Sketcher.Constraint("DistanceX", -1, 1, 1, 3, Q("230 mm")))
sketch14.addConstraint(Sketcher.Constraint("DistanceY", -1, 1, 1, 3, Q("101.9 mm")))
pocket13 = body.newObject("PartDesign::Pocket", "Pocket012")
pocket13.Profile = sketch14
pocket13.Type = "UpToFirst"

# Sketch on YZ plane
sketch15 = body.newObject("Sketcher::SketchObject", "Sketch014")
sketch15.AttachmentSupport = (doc.getObject("YZ_Plane"), [""])
sketch15.MapMode = "FlatFace"
sketch15.AttachmentOffset = App.Placement(V(0, 0, 4.5), App.Rotation())
sketch15.addGeometry(Part.LineSegment(V(350, 57, 0), V(350, 102, 0)), False)
sketch15.addGeometry(Part.ArcOfCircle(Part.Circle(V(340, 102, 0), V(0, 0, 1), 10), math.radians(0), math.radians(90)), False)
sketch15.addGeometry(Part.LineSegment(V(340, 112, 0), V(310, 112, 0)), False)
sketch15.addGeometry(Part.ArcOfCircle(Part.Circle(V(310, 102, 0), V(0, 0, 1), 10), math.radians(90), math.radians(180)), False)
sketch15.addGeometry(Part.LineSegment(V(300, 102, 0), V(300, 57, 0)), False)
sketch15.addGeometry(Part.ArcOfCircle(Part.Circle(V(310, 57, 0), V(0, 0, 1), 10), math.radians(180), math.radians(270)), False)
sketch15.addGeometry(Part.LineSegment(V(310, 47, 0), V(340, 47, 0)), False)
sketch15.addGeometry(Part.ArcOfCircle(Part.Circle(V(340, 57, 0), V(0, 0, 1), 10), math.radians(-90), math.radians(0)), False)
sketch15.addConstraint(Sketcher.Constraint("Tangent", 0, 2, 1, 1))
sketch15.addConstraint(Sketcher.Constraint("Tangent", 1, 2, 2, 1))
sketch15.addConstraint(Sketcher.Constraint("Tangent", 2, 2, 3, 1))
sketch15.addConstraint(Sketcher.Constraint("Tangent", 3, 2, 4, 1))
sketch15.addConstraint(Sketcher.Constraint("Tangent", 4, 2, 5, 1))
sketch15.addConstraint(Sketcher.Constraint("Tangent", 5, 2, 6, 1))
sketch15.addConstraint(Sketcher.Constraint("Tangent", 6, 2, 7, 1))
sketch15.addConstraint(Sketcher.Constraint("Tangent", 7, 2, 0, 1))
sketch15.addConstraint(Sketcher.Constraint("Vertical", 0))
sketch15.addConstraint(Sketcher.Constraint("Horizontal", 2))
sketch15.addConstraint(Sketcher.Constraint("Vertical", 4))
sketch15.addConstraint(Sketcher.Constraint("Horizontal", 6))
sketch15.addConstraint(Sketcher.Constraint("Equal", 1, 3))
sketch15.addConstraint(Sketcher.Constraint("Equal", 3, 5))
sketch15.addConstraint(Sketcher.Constraint("Equal", 5, 7))
sketch15.addConstraint(Sketcher.Constraint("Radius", 1, Q("10 mm")))
sketch15.addConstraint(Sketcher.Constraint("DistanceX", 2, 2, 2, 1, Q("30 mm")))
sketch15.addConstraint(Sketcher.Constraint("DistanceY", 0, 1, 0, 2, Q("45 mm")))
sketch15.addConstraint(Sketcher.Constraint("DistanceX", -1, 1, 1, 3, Q("340 mm")))
sketch15.addConstraint(Sketcher.Constraint("DistanceY", -1, 1, 1, 3, Q("101.9 mm")))
pocket14 = body.newObject("PartDesign::Pocket", "Pocket013")
pocket14.Profile = sketch15
pocket14.Type = "UpToFirst"

# Sketch on YZ plane
sketch16 = body.newObject("Sketcher::SketchObject", "Sketch015")
sketch16.AttachmentSupport = (doc.getObject("YZ_Plane"), [""])
sketch16.MapMode = "FlatFace"
sketch16.AttachmentOffset = App.Placement(V(0, 0, 4.5), App.Rotation())
sketch16.addGeometry(Part.LineSegment(V(240, 129, 0), V(240, 174, 0)), False)
sketch16.addGeometry(Part.ArcOfCircle(Part.Circle(V(230, 174, 0), V(0, 0, 1), 10), math.radians(0), math.radians(90)), False)
sketch16.addGeometry(Part.LineSegment(V(230, 184, 0), V(200, 184, 0)), False)
sketch16.addGeometry(Part.ArcOfCircle(Part.Circle(V(200, 174, 0), V(0, 0, 1), 10), math.radians(90), math.radians(180)), False)
sketch16.addGeometry(Part.LineSegment(V(190, 174, 0), V(190, 129, 0)), False)
sketch16.addGeometry(Part.ArcOfCircle(Part.Circle(V(200, 129, 0), V(0, 0, 1), 10), math.radians(180), math.radians(270)), False)
sketch16.addGeometry(Part.LineSegment(V(200, 119, 0), V(230, 119, 0)), False)
sketch16.addGeometry(Part.ArcOfCircle(Part.Circle(V(230, 129, 0), V(0, 0, 1), 10), math.radians(-90), math.radians(0)), False)
sketch16.addConstraint(Sketcher.Constraint("Tangent", 0, 2, 1, 1))
sketch16.addConstraint(Sketcher.Constraint("Tangent", 1, 2, 2, 1))
sketch16.addConstraint(Sketcher.Constraint("Tangent", 2, 2, 3, 1))
sketch16.addConstraint(Sketcher.Constraint("Tangent", 3, 2, 4, 1))
sketch16.addConstraint(Sketcher.Constraint("Tangent", 4, 2, 5, 1))
sketch16.addConstraint(Sketcher.Constraint("Tangent", 5, 2, 6, 1))
sketch16.addConstraint(Sketcher.Constraint("Tangent", 6, 2, 7, 1))
sketch16.addConstraint(Sketcher.Constraint("Tangent", 7, 2, 0, 1))
sketch16.addConstraint(Sketcher.Constraint("Vertical", 0))
sketch16.addConstraint(Sketcher.Constraint("Horizontal", 2))
sketch16.addConstraint(Sketcher.Constraint("Vertical", 4))
sketch16.addConstraint(Sketcher.Constraint("Horizontal", 6))
sketch16.addConstraint(Sketcher.Constraint("Equal", 1, 3))
sketch16.addConstraint(Sketcher.Constraint("Equal", 3, 5))
sketch16.addConstraint(Sketcher.Constraint("Equal", 5, 7))
sketch16.addConstraint(Sketcher.Constraint("Radius", 1, Q("10 mm")))
sketch16.addConstraint(Sketcher.Constraint("DistanceX", 2, 2, 2, 1, Q("30 mm")))
sketch16.addConstraint(Sketcher.Constraint("DistanceY", 0, 1, 0, 2, Q("45 mm")))
sketch16.addConstraint(Sketcher.Constraint("DistanceX", -1, 1, 1, 3, Q("230 mm")))
sketch16.addConstraint(Sketcher.Constraint("DistanceY", -1, 1, 1, 3, Q("173.9 mm")))
pocket15 = body.newObject("PartDesign::Pocket", "Pocket014")
pocket15.Profile = sketch16
pocket15.Type = "UpToFirst"

# Sketch on YZ plane
sketch17 = body.newObject("Sketcher::SketchObject", "Sketch016")
sketch17.AttachmentSupport = (doc.getObject("YZ_Plane"), [""])
sketch17.MapMode = "FlatFace"
sketch17.AttachmentOffset = App.Placement(V(0, 0, 4.5), App.Rotation())
sketch17.addGeometry(Part.LineSegment(V(350, 129, 0), V(350, 174, 0)), False)
sketch17.addGeometry(Part.ArcOfCircle(Part.Circle(V(340, 174, 0), V(0, 0, 1), 10), math.radians(0), math.radians(90)), False)
sketch17.addGeometry(Part.LineSegment(V(340, 184, 0), V(310, 184, 0)), False)
sketch17.addGeometry(Part.ArcOfCircle(Part.Circle(V(310, 174, 0), V(0, 0, 1), 10), math.radians(90), math.radians(180)), False)
sketch17.addGeometry(Part.LineSegment(V(300, 174, 0), V(300, 129, 0)), False)
sketch17.addGeometry(Part.ArcOfCircle(Part.Circle(V(310, 129, 0), V(0, 0, 1), 10), math.radians(180), math.radians(270)), False)
sketch17.addGeometry(Part.LineSegment(V(310, 119, 0), V(340, 119, 0)), False)
sketch17.addGeometry(Part.ArcOfCircle(Part.Circle(V(340, 129, 0), V(0, 0, 1), 10), math.radians(-90), math.radians(0)), False)
sketch17.addConstraint(Sketcher.Constraint("Tangent", 0, 2, 1, 1))
sketch17.addConstraint(Sketcher.Constraint("Tangent", 1, 2, 2, 1))
sketch17.addConstraint(Sketcher.Constraint("Tangent", 2, 2, 3, 1))
sketch17.addConstraint(Sketcher.Constraint("Tangent", 3, 2, 4, 1))
sketch17.addConstraint(Sketcher.Constraint("Tangent", 4, 2, 5, 1))
sketch17.addConstraint(Sketcher.Constraint("Tangent", 5, 2, 6, 1))
sketch17.addConstraint(Sketcher.Constraint("Tangent", 6, 2, 7, 1))
sketch17.addConstraint(Sketcher.Constraint("Tangent", 7, 2, 0, 1))
sketch17.addConstraint(Sketcher.Constraint("Vertical", 0))
sketch17.addConstraint(Sketcher.Constraint("Horizontal", 2))
sketch17.addConstraint(Sketcher.Constraint("Vertical", 4))
sketch17.addConstraint(Sketcher.Constraint("Horizontal", 6))
sketch17.addConstraint(Sketcher.Constraint("Equal", 1, 3))
sketch17.addConstraint(Sketcher.Constraint("Equal", 3, 5))
sketch17.addConstraint(Sketcher.Constraint("Equal", 5, 7))
sketch17.addConstraint(Sketcher.Constraint("Radius", 1, Q("10 mm")))
sketch17.addConstraint(Sketcher.Constraint("DistanceX", 2, 2, 2, 1, Q("30 mm")))
sketch17.addConstraint(Sketcher.Constraint("DistanceY", 0, 1, 0, 2, Q("45 mm")))
sketch17.addConstraint(Sketcher.Constraint("DistanceX", -1, 1, 1, 3, Q("340 mm")))
sketch17.addConstraint(Sketcher.Constraint("DistanceY", -1, 1, 1, 3, Q("173.9 mm")))
pocket16 = body.newObject("PartDesign::Pocket", "Pocket015")
pocket16.Profile = sketch17
pocket16.Type = "UpToFirst"

doc.recompute()
